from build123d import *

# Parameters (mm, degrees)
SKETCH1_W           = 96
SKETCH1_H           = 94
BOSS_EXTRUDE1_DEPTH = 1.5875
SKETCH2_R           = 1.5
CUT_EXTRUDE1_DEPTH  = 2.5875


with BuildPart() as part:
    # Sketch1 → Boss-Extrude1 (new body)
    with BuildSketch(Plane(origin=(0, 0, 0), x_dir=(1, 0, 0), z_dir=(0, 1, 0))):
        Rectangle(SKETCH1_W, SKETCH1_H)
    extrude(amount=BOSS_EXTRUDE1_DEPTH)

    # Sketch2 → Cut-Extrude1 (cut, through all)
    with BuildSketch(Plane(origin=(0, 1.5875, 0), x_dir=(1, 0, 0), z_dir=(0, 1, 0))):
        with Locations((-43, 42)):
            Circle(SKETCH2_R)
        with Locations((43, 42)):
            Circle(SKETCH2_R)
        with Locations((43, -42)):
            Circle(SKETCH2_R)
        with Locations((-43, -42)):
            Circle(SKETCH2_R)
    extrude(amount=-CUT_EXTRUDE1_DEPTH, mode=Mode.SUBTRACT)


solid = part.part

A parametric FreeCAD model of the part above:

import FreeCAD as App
import Part
import Sketcher

V = App.Vector
Q = App.Units.Quantity


def add_polygon(sketch, points):
    """Adds a closed chain of lines whose ends are joined by coincident constraints."""
    first, n = sketch.GeometryCount, len(points)
    for a, b in zip(points, points[1:] + points[:1]):
        sketch.addGeometry(Part.LineSegment(App.Vector(*a, 0), App.Vector(*b, 0)), False)
    for i in range(n):
        sketch.addConstraint(Sketcher.Constraint("Coincident", first + i, 2, first + (i + 1) % n, 1))

doc = App.newDocument("Part")
body = doc.addObject("PartDesign::Body", "Body")

sketch1 = doc.addObject("Sketcher::SketchObject", "Sketch")
body.addObject(sketch1)
sketch1.AttachmentSupport = (doc.XZ_Plane, [""])
sketch1.MapMode = "FlatFace"
add_polygon(sketch1, [(-48, -47), (-48, 47), (48, 47), (48, -47)])
sketch1.addConstraint([
    Sketcher.Constraint("Vertical", 0),
    Sketcher.Constraint("Horizontal", 1),
    Sketcher.Constraint("Vertical", 2),
    Sketcher.Constraint("Horizontal", 3),
    Sketcher.Constraint("Symmetric", 0, 2, 2, 2, -1, 1),
    Sketcher.Constraint("DistanceX", 1, 1, 1, 2, Q("96 mm")),
    Sketcher.Constraint("DistanceY", 0, 1, 0, 2, Q("94 mm")),
])
pad1 = doc.addObject("PartDesign::Pad", "Pad")
body.addObject(pad1)
pad1.Profile = sketch1
pad1.Length = 1.5875
pad1.Reversed = True

sketch2 = doc.addObject("Sketcher::SketchObject", "Sketch001")
body.addObject(sketch2)
sketch2.AttachmentSupport = (doc.XZ_Plane, [""])
sketch2.MapMode = "FlatFace"
sketch2.AttachmentOffset = App.Placement(V(0, 0, -1.5875), App.Rotation())
sketch2.addGeometry([
    Part.Circle(V(-43, -42, 0), V(0, 0, 1), 1.5),
    Part.Circle(V(43, -42, 0), V(0, 0, 1), 1.5),
    Part.Circle(V(43, 42, 0), V(0, 0, 1), 1.5),
    Part.Circle(V(-43, 42, 0), V(0, 0, 1), 1.5),
], False)
sketch2.addConstraint([
    Sketcher.Constraint("Equal", 0, 1),
    Sketcher.Constraint("Equal", 1, 2),
    Sketcher.Constraint("Equal", 2, 3),
    Sketcher.Constraint("Symmetric", 0, 3, 2, 3, -1, 1),
    Sketcher.Constraint("Symmetric", 1, 3, 3, 3, -1, 1),
    Sketcher.Constraint("Symmetric", 0, 3, 1, 3, -2),
    Sketcher.Constraint("Diameter", 0, Q("3 mm")),
    Sketcher.Constraint("DistanceX", 0, 3, -1, 1, Q("43 mm")),
    Sketcher.Constraint("DistanceY", 0, 3, -1, 1, Q("42 mm")),
])
pocket1 = doc.addObject("PartDesign::Pocket", "Pocket")
body.addObject(pocket1)
pocket1.Profile = sketch2
pocket1.Type = "ThroughAll"
pocket1.Reversed = True

doc.recompute()
